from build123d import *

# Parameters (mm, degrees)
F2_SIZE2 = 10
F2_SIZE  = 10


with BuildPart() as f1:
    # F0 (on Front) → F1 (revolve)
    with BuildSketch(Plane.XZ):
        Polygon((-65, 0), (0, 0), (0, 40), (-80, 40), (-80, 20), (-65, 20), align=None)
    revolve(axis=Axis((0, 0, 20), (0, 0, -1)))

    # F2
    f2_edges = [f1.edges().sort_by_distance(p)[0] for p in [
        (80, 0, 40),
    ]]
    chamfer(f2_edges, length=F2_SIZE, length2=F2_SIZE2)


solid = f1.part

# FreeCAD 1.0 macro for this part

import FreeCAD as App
import Part
import Sketcher
from FreeCAD import Vector


def edges_at(feature, points):
    """Names of the edges that pass closest to the given points."""
    edges = feature.Shape.Edges
    near = lambda p: min(range(len(edges)), key=lambda i: edges[i].distToShape(Part.Vertex(*p))[0])
    return sorted({f"Edge{near(p) + 1}" for p in points})


def add_polygon(sketch, points):
    """Adds a closed chain of lines whose ends are joined by coincident constraints."""
    first, n = sketch.GeometryCount, len(points)
    for a, b in zip(points, points[1:] + points[:1]):
        sketch.addGeometry(Part.LineSegment(App.Vector(*a, 0), App.Vector(*b, 0)), False)
    for i in range(n):
        sketch.addConstraint(Sketcher.Constraint("Coincident", first + i, 2, first + (i + 1) % n, 1))

doc = App.newDocument("Part")
body = doc.addObject("PartDesign::Body", "Body")

# Sketch on XZ plane
sketch1 = doc.addObject("Sketcher::SketchObject", "Sketch")
body.addObject(sketch1)
sketch1.AttachmentSupport = (doc.XZ_Plane, [""])
sketch1.MapMode = "FlatFace"
add_polygon(sketch1, [(-65, 0), (0, 0), (0, 40), (-80, 40), (-80, 20), (-65, 20)])  # lines 0-5
sketch1.addConstraint([
    Sketcher.Constraint("Horizontal", 0),
    Sketcher.Constraint("Vertical", 1),
    Sketcher.Constraint("Horizontal", 2),
    Sketcher.Constraint("Vertical", 3),
    Sketcher.Constraint("Horizontal", 4),
    Sketcher.Constraint("Vertical", 5),
    Sketcher.Constraint("Coincident", 0, 2, -1, 1),
    Sketcher.Constraint("Equal", 3, 5),
    Sketcher.Constraint("DistanceX", 0, 1, 0, 2, 65.0),
    Sketcher.Constraint("DistanceX", 2, 2, 2, 1, 80.0),
    Sketcher.Constraint("DistanceY", 1, 1, 1, 2, 40.0),
])
revolution = doc.addObject("PartDesign::Revolution", "Revolution")
body.addObject(revolution)
revolution.Profile = sketch1
revolution.ReferenceAxis = (sketch1, ["V_Axis"])
revolution.Angle = 360
doc.recompute()

chamfer = doc.addObject("PartDesign::Chamfer", "Chamfer")
body.addObject(chamfer)
chamfer.Base = (revolution, edges_at(revolution, [(80, 0, 40)]))
chamfer.ChamferType = "Two distances"
chamfer.Size = 10
chamfer.Size2 = 10

doc.recompute()
